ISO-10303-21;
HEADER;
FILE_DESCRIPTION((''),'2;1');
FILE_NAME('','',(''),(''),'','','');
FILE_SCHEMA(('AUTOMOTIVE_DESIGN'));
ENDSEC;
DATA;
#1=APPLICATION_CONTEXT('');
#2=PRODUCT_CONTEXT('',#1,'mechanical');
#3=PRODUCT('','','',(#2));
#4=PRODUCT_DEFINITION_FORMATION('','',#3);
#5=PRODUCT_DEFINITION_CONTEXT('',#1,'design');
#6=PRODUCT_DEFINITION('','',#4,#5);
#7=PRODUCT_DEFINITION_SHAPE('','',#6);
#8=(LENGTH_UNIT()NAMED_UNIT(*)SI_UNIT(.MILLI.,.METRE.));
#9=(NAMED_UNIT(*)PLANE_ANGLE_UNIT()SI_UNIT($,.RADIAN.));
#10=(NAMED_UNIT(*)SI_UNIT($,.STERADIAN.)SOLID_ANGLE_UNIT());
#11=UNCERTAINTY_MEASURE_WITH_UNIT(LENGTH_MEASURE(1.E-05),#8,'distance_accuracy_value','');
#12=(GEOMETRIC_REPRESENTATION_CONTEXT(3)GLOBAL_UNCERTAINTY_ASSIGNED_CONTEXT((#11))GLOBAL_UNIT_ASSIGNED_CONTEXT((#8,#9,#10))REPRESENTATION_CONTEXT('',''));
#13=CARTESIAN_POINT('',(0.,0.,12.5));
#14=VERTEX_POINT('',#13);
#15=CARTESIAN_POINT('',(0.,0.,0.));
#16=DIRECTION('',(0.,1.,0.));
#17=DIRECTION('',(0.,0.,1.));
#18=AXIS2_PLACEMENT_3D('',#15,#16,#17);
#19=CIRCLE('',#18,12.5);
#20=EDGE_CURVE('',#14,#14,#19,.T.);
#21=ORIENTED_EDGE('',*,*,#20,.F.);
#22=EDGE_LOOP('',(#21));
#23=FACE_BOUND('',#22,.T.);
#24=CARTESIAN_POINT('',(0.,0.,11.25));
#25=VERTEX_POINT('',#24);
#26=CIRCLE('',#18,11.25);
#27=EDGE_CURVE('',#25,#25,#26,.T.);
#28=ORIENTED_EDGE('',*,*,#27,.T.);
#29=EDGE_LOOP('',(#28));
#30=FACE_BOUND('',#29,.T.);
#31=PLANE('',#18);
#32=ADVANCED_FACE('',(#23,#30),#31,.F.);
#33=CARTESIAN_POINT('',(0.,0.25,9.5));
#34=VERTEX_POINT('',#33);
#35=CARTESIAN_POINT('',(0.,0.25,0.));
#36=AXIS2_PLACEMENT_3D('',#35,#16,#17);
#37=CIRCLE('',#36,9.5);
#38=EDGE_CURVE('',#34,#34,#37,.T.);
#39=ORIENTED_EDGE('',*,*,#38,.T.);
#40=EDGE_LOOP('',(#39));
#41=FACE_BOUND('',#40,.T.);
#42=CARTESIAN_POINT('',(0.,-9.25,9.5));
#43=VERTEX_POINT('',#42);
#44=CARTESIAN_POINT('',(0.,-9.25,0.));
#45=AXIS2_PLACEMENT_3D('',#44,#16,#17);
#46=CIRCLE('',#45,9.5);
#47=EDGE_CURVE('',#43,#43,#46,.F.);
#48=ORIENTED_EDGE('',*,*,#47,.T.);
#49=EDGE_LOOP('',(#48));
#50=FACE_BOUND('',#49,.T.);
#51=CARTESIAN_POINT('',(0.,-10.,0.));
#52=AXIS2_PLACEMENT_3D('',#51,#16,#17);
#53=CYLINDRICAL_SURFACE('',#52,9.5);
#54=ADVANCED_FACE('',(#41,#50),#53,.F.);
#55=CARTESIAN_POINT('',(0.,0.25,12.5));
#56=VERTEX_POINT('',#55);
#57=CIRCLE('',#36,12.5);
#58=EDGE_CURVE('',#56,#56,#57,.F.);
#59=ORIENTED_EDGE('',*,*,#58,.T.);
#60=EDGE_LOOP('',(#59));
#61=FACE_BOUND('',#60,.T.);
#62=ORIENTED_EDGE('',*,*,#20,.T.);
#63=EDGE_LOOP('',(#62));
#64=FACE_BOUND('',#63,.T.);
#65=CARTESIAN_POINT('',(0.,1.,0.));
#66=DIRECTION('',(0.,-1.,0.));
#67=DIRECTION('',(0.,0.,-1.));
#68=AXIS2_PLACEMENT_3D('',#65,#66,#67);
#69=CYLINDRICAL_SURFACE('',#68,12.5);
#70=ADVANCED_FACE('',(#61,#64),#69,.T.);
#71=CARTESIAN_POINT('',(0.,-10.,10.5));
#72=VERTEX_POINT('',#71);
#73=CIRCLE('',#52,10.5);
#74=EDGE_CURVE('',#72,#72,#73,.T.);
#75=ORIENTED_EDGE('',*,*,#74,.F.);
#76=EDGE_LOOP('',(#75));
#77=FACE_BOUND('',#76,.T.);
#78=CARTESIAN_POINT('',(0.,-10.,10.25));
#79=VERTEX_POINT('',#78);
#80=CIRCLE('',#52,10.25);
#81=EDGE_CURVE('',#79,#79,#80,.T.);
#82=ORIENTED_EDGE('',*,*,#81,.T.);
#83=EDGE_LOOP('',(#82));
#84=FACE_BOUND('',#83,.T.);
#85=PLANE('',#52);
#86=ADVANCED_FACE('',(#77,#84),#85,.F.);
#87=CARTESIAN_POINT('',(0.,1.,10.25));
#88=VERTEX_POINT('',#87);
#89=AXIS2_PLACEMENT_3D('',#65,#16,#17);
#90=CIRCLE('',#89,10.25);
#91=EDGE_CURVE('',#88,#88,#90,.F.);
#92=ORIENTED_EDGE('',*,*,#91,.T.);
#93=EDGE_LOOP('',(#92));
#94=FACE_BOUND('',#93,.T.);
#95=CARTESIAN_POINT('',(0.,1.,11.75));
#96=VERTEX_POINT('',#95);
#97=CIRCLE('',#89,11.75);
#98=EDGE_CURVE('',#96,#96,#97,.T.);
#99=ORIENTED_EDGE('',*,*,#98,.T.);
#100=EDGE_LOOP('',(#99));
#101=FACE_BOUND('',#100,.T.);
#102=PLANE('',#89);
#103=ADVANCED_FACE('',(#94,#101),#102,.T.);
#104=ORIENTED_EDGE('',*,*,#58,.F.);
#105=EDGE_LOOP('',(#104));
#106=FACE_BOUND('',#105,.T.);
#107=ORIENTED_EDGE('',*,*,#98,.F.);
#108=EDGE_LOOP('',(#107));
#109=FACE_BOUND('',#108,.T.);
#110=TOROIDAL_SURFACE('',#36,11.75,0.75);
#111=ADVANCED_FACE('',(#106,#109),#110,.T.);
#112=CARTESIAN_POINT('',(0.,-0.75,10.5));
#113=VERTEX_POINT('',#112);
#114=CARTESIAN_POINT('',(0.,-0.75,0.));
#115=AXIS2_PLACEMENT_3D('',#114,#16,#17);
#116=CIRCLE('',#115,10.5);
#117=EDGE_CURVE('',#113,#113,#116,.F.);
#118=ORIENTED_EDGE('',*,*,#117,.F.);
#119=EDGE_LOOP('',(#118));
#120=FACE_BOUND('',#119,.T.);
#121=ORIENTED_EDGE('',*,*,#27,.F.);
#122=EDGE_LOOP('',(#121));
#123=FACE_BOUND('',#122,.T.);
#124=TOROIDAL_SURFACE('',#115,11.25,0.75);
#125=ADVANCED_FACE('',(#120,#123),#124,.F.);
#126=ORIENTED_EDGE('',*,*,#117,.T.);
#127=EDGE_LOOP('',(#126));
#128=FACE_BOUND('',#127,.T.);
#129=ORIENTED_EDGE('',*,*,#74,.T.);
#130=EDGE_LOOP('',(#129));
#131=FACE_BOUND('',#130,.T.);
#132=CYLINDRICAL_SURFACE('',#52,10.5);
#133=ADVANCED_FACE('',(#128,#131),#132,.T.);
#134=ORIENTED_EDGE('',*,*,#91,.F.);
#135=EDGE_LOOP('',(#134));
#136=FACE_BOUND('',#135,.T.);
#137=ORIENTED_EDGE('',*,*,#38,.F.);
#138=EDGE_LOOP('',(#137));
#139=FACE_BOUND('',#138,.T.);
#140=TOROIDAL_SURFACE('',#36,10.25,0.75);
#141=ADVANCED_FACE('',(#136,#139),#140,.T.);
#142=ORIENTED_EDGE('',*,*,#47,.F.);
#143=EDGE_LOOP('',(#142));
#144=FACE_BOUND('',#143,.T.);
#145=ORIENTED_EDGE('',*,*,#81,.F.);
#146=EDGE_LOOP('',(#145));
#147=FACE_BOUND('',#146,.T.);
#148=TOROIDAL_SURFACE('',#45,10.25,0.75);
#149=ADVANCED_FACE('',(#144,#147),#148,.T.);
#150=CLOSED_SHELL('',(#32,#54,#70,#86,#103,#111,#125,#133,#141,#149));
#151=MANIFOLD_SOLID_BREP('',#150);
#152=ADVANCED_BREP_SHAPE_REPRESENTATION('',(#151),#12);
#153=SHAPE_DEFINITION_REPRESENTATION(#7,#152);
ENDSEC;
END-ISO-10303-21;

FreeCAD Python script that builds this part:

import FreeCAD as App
import Part
import Sketcher
from FreeCAD import Vector


def edges_at(feature, points):
    """Names of the edges that pass closest to the given points."""
    edges = feature.Shape.Edges
    near = lambda p: min(range(len(edges)), key=lambda i: edges[i].distToShape(Part.Vertex(*p))[0])
    return sorted({f"Edge{near(p) + 1}" for p in points})

doc = App.newDocument("Part")
body = doc.addObject("PartDesign::Body", "Body")

sketch1 = body.newObject("Sketcher::SketchObject", "Sketch")
sketch1.AttachmentSupport = (doc.getObject("XZ_Plane"), [""])
sketch1.MapMode = "FlatFace"
sketch1.addGeometry([
    Part.Circle(Vector(0, 0, 0), Vector(0, 0, 1), 10),
    Part.Circle(Vector(0, 0, 0), Vector(0, 0, 1), 10),
], False)
sketch1.addConstraint([
    Sketcher.Constraint("Coincident", 0, 3, -1, 1),
    Sketcher.Constraint("Coincident", 1, 3, -1, 1),
    Sketcher.Constraint("Diameter", 0, 21.0),
    Sketcher.Constraint("Diameter", 1, 19.0),
])
pad1 = body.newObject("PartDesign::Pad", "Pad")
pad1.Profile = sketch1
pad1.Length = 10

sketch2 = body.newObject("Sketcher::SketchObject", "Sketch001")
sketch2.AttachmentSupport = (doc.getObject("XZ_Plane"), [""])
sketch2.MapMode = "FlatFace"
sketch2.AttachmentOffset = App.Placement(Vector(0, 0, -1), App.Rotation())
sketch2.addGeometry([
    Part.Circle(Vector(0, 0, 0), Vector(0, 0, 1), 12),
    Part.Circle(Vector(0, 0, 0), Vector(0, 0, 1), 10),
], False)
sketch2.addConstraint([
    Sketcher.Constraint("Coincident", 0, 3, -1, 1),
    Sketcher.Constraint("Coincident", 1, 3, -1, 1),
    Sketcher.Constraint("Diameter", 0, 25.0),
    Sketcher.Constraint("Diameter", 1, 19.0),
])
pad2 = body.newObject("PartDesign::Pad", "Pad001")
pad2.Profile = sketch2
pad2.Length = 1
doc.recompute()

fillet = body.newObject("PartDesign::Fillet", "Fillet")
fillet.Base = (pad2, edges_at(pad2, [
    (0, 1, -12.5),
    (0, 1, -9.5),
    (0, 0, -10.5),
    (0, -10, -9.5),
]))
fillet.Radius = 0.75

doc.recompute()
